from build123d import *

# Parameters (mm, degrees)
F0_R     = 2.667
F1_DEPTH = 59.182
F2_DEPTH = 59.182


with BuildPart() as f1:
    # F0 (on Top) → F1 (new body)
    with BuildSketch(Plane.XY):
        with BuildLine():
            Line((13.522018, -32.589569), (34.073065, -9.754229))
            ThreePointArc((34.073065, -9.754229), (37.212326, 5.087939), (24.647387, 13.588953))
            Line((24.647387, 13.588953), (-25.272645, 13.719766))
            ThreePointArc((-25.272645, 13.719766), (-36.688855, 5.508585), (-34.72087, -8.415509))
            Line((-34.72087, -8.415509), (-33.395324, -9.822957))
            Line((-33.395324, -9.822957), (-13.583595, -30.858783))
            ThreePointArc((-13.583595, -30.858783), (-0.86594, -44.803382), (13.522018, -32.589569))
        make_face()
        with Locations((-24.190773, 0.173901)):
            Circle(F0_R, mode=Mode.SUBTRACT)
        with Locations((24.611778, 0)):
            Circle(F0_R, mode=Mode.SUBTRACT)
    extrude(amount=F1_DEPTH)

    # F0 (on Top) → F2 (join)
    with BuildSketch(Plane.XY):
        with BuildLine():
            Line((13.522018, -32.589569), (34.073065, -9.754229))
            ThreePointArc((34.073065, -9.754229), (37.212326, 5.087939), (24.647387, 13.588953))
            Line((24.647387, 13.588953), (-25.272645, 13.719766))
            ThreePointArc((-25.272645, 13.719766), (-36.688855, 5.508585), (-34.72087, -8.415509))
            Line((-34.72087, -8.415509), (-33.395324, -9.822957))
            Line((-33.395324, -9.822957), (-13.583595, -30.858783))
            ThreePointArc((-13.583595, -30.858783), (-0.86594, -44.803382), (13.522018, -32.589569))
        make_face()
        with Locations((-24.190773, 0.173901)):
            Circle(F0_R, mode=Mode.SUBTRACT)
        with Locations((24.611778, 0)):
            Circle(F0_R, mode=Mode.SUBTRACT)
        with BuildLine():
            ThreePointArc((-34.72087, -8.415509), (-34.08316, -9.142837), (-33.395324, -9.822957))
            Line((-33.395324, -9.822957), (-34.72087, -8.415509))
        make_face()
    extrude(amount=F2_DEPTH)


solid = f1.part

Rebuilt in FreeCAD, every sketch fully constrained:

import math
import FreeCAD as App
import Part
import Sketcher
from FreeCAD import Vector
Q = App.Units.Quantity

doc = App.newDocument("Part")
body = doc.addObject("PartDesign::Body", "Body")

sketch1 = body.newObject("Sketcher::SketchObject", "Sketch")
sketch1.AttachmentSupport = (doc.getObject("XY_Plane"), [""])
sketch1.MapMode = "FlatFace"
sketch1.addGeometry([
    Part.LineSegment(Vector(13.5, -32.6, 0), Vector(34.1, -9.8, 0)),
    Part.ArcOfCircle(Part.Circle(Vector(24.6, 0, 0), Vector(0, 0, 1), 13.6), math.radians(-46), math.radians(90)),
    Part.LineSegment(Vector(24.6, 13.6, 0), Vector(-25.3, 13.7, 0)),
    Part.ArcOfCircle(Part.Circle(Vector(-24.2, 0.2, 0), Vector(0, 0, 1), 13.6), math.radians(95), math.radians(219)),
    Part.LineSegment(Vector(-34.7, -8.4, 0), Vector(-33.4, -9.8, 0)),
    Part.LineSegment(Vector(-33.4, -9.8, 0), Vector(-13.6, -30.9, 0)),
    Part.ArcOfCircle(Part.Circle(Vector(0, -31.2, 0), Vector(0, 0, 1), 13.6), math.radians(178), math.radians(354)),
    Part.Circle(Vector(24.6, 0, 0), Vector(0, 0, 1), 2.7),
    Part.Circle(Vector(-24.2, 0.2, 0), Vector(0, 0, 1), 2.7),
], False)
sketch1.addConstraint([
    Sketcher.Constraint("Coincident", 0, 2, 1, 1),
    Sketcher.Constraint("Tangent", 1, 2, 2, 1),
    Sketcher.Constraint("Coincident", 2, 2, 3, 1),
    Sketcher.Constraint("Coincident", 3, 2, 4, 1),
    Sketcher.Constraint("Coincident", 4, 2, 5, 1),
    Sketcher.Constraint("Coincident", 5, 2, 6, 1),
    Sketcher.Constraint("Coincident", 6, 2, 0, 1),
    Sketcher.Constraint("Coincident", 7, 3, 1, 3),
    Sketcher.Constraint("Coincident", 8, 3, 3, 3),
    Sketcher.Constraint("Equal", 1, 3),
    Sketcher.Constraint("Equal", 3, 6),
    Sketcher.Constraint("Equal", 7, 8),
    Sketcher.Constraint("PointOnObject", 1, 3, -1),
    Sketcher.Constraint("PointOnObject", 6, 3, -2),
    Sketcher.Constraint("Parallel", 4, 5),
    Sketcher.Constraint("Diameter", 7, Q("0.21 in")),
    Sketcher.Constraint("Radius", 1, Q("0.535 in")),
    Sketcher.Constraint("DistanceY", 6, 3, -1, 1, Q("1.23 in")),
    Sketcher.Constraint("Distance", 0, Q("1.2095 in")),
    Sketcher.Constraint("DistanceY", -1, 1, 3, 3, 0.173901),
    Sketcher.Constraint("Distance", 5, 28.89655),
    Sketcher.Constraint("DistanceX", -1, 1, 1, 3, 24.611779),
    Sketcher.Constraint("DistanceY", 0, 2, -1, 1, 9.754229),
    Sketcher.Constraint("DistanceX", 3, 2, -1, 1, 34.72087),
    Sketcher.Constraint("DistanceY", 3, 2, -1, 1, 8.415509),
    Sketcher.Constraint("DistanceX", 2, 2, 3, 3, 1.081872),
    Sketcher.Constraint("DistanceY", 4, 2, 3, 2, 1.407448),
])
pad1 = body.newObject("PartDesign::Pad", "Pad")
pad1.Profile = sketch1
pad1.Length = Q("2.33 in")

sketch2 = body.newObject("Sketcher::SketchObject", "Sketch001")
sketch2.AttachmentSupport = (doc.getObject("XY_Plane"), [""])
sketch2.MapMode = "FlatFace"
sketch2.addGeometry([
    Part.LineSegment(Vector(13.5, -32.6, 0), Vector(34.1, -9.8, 0)),
    Part.ArcOfCircle(Part.Circle(Vector(24.6, 0, 0), Vector(0, 0, 1), 13.6), math.radians(-46), math.radians(90)),
    Part.LineSegment(Vector(24.6, 13.6, 0), Vector(-25.3, 13.7, 0)),
    Part.ArcOfCircle(Part.Circle(Vector(-24.2, 0.2, 0), Vector(0, 0, 1), 13.6), math.radians(95), math.radians(219)),
    Part.ArcOfCircle(Part.Circle(Vector(-24.2, 0.2, 0), Vector(0, 0, 1), 13.6), math.radians(-140.8), math.radians(-132.64)),
    Part.LineSegment(Vector(-33.4, -9.8, 0), Vector(-13.6, -30.9, 0)),
    Part.ArcOfCircle(Part.Circle(Vector(0, -31.2, 0), Vector(0, 0, 1), 13.6), math.radians(178), math.radians(354)),
    Part.Circle(Vector(24.6, 0, 0), Vector(0, 0, 1), 2.7),
    Part.Circle(Vector(-24.2, 0.2, 0), Vector(0, 0, 1), 2.7),
], False)
sketch2.addConstraint([
    Sketcher.Constraint("Coincident", 0, 2, 1, 1),
    Sketcher.Constraint("Tangent", 1, 2, 2, 1),
    Sketcher.Constraint("Coincident", 2, 2, 3, 1),
    Sketcher.Constraint("Tangent", 3, 2, 4, 1),
    Sketcher.Constraint("Coincident", 4, 2, 5, 1),
    Sketcher.Constraint("Coincident", 5, 2, 6, 1),
    Sketcher.Constraint("Coincident", 6, 2, 0, 1),
    Sketcher.Constraint("Coincident", 7, 3, 1, 3),
    Sketcher.Constraint("Coincident", 8, 3, 3, 3),
    Sketcher.Constraint("Equal", 1, 3),
    Sketcher.Constraint("Equal", 3, 6),
    Sketcher.Constraint("Equal", 7, 8),
    Sketcher.Constraint("PointOnObject", 1, 3, -1),
    Sketcher.Constraint("PointOnObject", 6, 3, -2),
    Sketcher.Constraint("Diameter", 7, Q("0.21 in")),
    Sketcher.Constraint("Radius", 1, Q("0.535 in")),
    Sketcher.Constraint("DistanceY", 6, 3, -1, 1, Q("1.23 in")),
    Sketcher.Constraint("Radius", 4, 13.588862),
    Sketcher.Constraint("Distance", 0, Q("1.2095 in")),
    Sketcher.Constraint("DistanceY", -1, 1, 3, 3, 0.173901),
    Sketcher.Constraint("DistanceX", 3, 2, 4, 3, 10.53),
    Sketcher.Constraint("Distance", 5, 28.89655),
    Sketcher.Constraint("DistanceX", -1, 1, 1, 3, 24.611779),
    Sketcher.Constraint("DistanceX", 4, 3, -1, 1, 24.19087),
    Sketcher.Constraint("DistanceY", 0, 2, -1, 1, 9.754229),
    Sketcher.Constraint("DistanceX", 2, 2, 3, 3, 1.081872),
    Sketcher.Constraint("DistanceY", 4, 2, 4, 3, 9.996759),
])
pad2 = body.newObject("PartDesign::Pad", "Pad001")
pad2.Profile = sketch2
pad2.Length = Q("2.33 in")

doc.recompute()
